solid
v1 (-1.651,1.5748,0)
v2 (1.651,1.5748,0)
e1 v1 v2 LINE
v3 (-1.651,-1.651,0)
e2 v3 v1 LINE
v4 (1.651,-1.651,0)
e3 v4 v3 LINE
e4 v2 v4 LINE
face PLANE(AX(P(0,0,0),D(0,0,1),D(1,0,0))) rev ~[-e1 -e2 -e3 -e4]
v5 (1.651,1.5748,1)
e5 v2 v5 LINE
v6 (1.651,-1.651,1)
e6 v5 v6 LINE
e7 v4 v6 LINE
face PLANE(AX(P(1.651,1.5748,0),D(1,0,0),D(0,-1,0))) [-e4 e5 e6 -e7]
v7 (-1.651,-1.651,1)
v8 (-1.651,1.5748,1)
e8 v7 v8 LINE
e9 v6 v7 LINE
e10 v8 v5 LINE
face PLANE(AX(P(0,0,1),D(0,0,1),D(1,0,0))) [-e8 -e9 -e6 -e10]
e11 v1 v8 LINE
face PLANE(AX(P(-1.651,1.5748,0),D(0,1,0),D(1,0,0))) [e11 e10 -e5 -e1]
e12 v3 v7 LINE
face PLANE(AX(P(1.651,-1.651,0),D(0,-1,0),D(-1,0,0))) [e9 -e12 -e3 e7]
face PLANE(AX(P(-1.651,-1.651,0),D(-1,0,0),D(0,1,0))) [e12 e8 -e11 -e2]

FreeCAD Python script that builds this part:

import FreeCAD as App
import Part
import Sketcher
Q = App.Units.Quantity


def add_polygon(sketch, points):
    """Adds a closed chain of lines whose ends are joined by coincident constraints."""
    first, n = sketch.GeometryCount, len(points)
    for a, b in zip(points, points[1:] + points[:1]):
        sketch.addGeometry(Part.LineSegment(App.Vector(*a, 0), App.Vector(*b, 0)), False)
    for i in range(n):
        sketch.addConstraint(Sketcher.Constraint("Coincident", first + i, 2, first + (i + 1) % n, 1))

doc = App.newDocument("Part")
body = doc.addObject("PartDesign::Body", "Body")

sketch1 = body.newObject("Sketcher::SketchObject", "Sketch")
sketch1.AttachmentSupport = (doc.getObject("XY_Plane"), [""])
sketch1.MapMode = "FlatFace"
add_polygon(sketch1, [(1.651, 1.5748), (-1.651, 1.5748), (-1.651, -1.651), (1.651, -1.651)])
sketch1.addConstraint([
    Sketcher.Constraint("Horizontal", 0),
    Sketcher.Constraint("Vertical", 1),
    Sketcher.Constraint("Horizontal", 2),
    Sketcher.Constraint("Vertical", 3),
    Sketcher.Constraint("DistanceX", 0, 2, 0, 1, Q("0.13 in")),
    Sketcher.Constraint("DistanceY", 1, 2, 1, 1, Q("0.127 in")),
    Sketcher.Constraint("DistanceX", 0, 2, -1, 1, Q("0.065 in")),
    Sketcher.Constraint("DistanceY", -1, 1, 0, 2, Q("0.062 in")),
])
pad1 = body.newObject("PartDesign::Pad", "Pad")
pad1.Profile = sketch1
pad1.Length = 1

doc.recompute()
